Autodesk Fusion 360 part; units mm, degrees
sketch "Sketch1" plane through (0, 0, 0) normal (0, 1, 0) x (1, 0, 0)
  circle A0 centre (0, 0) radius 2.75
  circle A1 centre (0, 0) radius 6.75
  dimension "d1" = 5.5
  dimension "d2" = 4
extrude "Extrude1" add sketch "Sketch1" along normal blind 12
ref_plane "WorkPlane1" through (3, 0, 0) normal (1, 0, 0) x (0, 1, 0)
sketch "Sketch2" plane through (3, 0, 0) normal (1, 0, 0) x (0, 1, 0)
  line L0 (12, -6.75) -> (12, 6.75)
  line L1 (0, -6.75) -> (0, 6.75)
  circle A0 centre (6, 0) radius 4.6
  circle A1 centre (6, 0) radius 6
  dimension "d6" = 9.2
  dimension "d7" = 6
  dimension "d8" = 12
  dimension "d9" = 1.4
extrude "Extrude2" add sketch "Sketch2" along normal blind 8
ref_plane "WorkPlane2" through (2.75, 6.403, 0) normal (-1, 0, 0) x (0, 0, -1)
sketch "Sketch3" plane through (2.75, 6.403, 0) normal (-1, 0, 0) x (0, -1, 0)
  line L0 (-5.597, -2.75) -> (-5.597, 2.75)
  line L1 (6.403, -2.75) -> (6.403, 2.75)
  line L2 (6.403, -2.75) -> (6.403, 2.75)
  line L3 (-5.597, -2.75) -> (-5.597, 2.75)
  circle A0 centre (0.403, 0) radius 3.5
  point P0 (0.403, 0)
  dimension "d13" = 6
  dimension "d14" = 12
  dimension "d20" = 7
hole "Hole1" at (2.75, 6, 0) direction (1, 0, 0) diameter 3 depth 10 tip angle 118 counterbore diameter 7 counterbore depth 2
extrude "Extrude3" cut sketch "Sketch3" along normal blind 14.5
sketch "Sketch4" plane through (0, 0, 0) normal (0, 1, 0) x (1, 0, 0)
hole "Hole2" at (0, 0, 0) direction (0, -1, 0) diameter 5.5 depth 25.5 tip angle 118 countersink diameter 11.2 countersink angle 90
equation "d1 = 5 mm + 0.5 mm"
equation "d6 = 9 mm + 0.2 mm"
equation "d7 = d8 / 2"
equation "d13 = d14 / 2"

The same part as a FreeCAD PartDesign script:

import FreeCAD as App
import Part
import Sketcher

doc = App.newDocument("Part")
body = doc.addObject("PartDesign::Body", "Body")

sketch1 = body.newObject("Sketcher::SketchObject", "Sketch")
sketch1.AttachmentSupport = (doc.getObject("XZ_Plane"), [""])
sketch1.MapMode = "FlatFace"
sketch1.addGeometry([
    Part.Circle(App.Vector(0, 0, 0), App.Vector(0, 0, 1), 6.75),
    Part.Circle(App.Vector(0, 0, 0), App.Vector(0, 0, 1), 2.75),
], False)
sketch1.addConstraint([
    Sketcher.Constraint("Coincident", 0, 3, -1, 1),
    Sketcher.Constraint("Coincident", 1, 3, -1, 1),
    Sketcher.Constraint("Diameter", 1, 5.5),
    Sketcher.Constraint("Diameter", 0, 13.5),
])
pad1 = body.newObject("PartDesign::Pad", "Pad")
pad1.Profile = sketch1
pad1.Length = 12
pad1.Reversed = True

sketch2 = body.newObject("Sketcher::SketchObject", "Sketch001")
sketch2.AttachmentSupport = (doc.getObject("YZ_Plane"), [""])
sketch2.MapMode = "FlatFace"
sketch2.AttachmentOffset = App.Placement(App.Vector(0, 0, 3), App.Rotation())
sketch2.addGeometry([
    Part.Circle(App.Vector(6, 0, 0), App.Vector(0, 0, 1), 6),
    Part.Circle(App.Vector(6, 0, 0), App.Vector(0, 0, 1), 4.6),
], False)
sketch2.addConstraint([
    Sketcher.Constraint("Coincident", 1, 3, 0, 3),
    Sketcher.Constraint("PointOnObject", 0, 3, -1),
    Sketcher.Constraint("Diameter", 0, 12.0),
    Sketcher.Constraint("Diameter", 1, 9.2),
    Sketcher.Constraint("DistanceX", -1, 1, 0, 3, 6.0),
])
pad2 = body.newObject("PartDesign::Pad", "Pad001")
pad2.Profile = sketch2
pad2.Length = 8

sketch3 = body.newObject("Sketcher::SketchObject", "Sketch002")
sketch3.AttachmentSupport = (doc.getObject("YZ_Plane"), [""])
sketch3.MapMode = "FlatFace"
sketch3.AttachmentOffset = App.Placement(App.Vector(0, 0, 2.75), App.Rotation())
sketch3.addGeometry(Part.Circle(App.Vector(6, 0, 0), App.Vector(0, 0, 1), 1.5), False)
sketch3.addConstraint([
    Sketcher.Constraint("PointOnObject", 0, 3, -1),
    Sketcher.Constraint("Diameter", 0, 3.0),
    Sketcher.Constraint("DistanceX", -1, 1, 0, 3, 6.0),
])
doc.recompute()
hole = body.newObject("PartDesign::Hole", "Hole")
hole.Profile = sketch3
hole.ThreadType = "None"
hole.Diameter = 3
hole.DepthType = "Dimension"
hole.Depth = 10
hole.DrillPoint = "Angled"
hole.DrillPointAngle = 118
hole.HoleCutType = "Counterbore"
hole.HoleCutDiameter = 7
hole.HoleCutDepth = 2
hole.Reversed = True

sketch4 = body.newObject("Sketcher::SketchObject", "Sketch003")
sketch4.AttachmentSupport = (doc.getObject("YZ_Plane"), [""])
sketch4.MapMode = "FlatFace"
sketch4.AttachmentOffset = App.Placement(App.Vector(0, 0, 2.75), App.Rotation())
sketch4.addGeometry(Part.Circle(App.Vector(6, 0, 0), App.Vector(0, 0, 1), 3.5), False)
sketch4.addConstraint([
    Sketcher.Constraint("PointOnObject", 0, 3, -1),
    Sketcher.Constraint("Diameter", 0, 7.0),
    Sketcher.Constraint("DistanceX", -1, 1, 0, 3, 6.0),
])
pocket1 = body.newObject("PartDesign::Pocket", "Pocket")
pocket1.Profile = sketch4
pocket1.Length = 14.5

sketch5 = body.newObject("Sketcher::SketchObject", "Sketch004")
sketch5.AttachmentSupport = (doc.getObject("XZ_Plane"), [""])
sketch5.MapMode = "FlatFace"
sketch5.addGeometry(Part.Circle(App.Vector(0, 0, 0), App.Vector(0, 0, 1), 2.75), False)
sketch5.addConstraint([
    Sketcher.Constraint("Coincident", 0, 3, -1, 1),
    Sketcher.Constraint("Diameter", 0, 5.5),
])
doc.recompute()
hole2 = body.newObject("PartDesign::Hole", "Hole001")
hole2.Profile = sketch5
hole2.ThreadType = "None"
hole2.Diameter = 5.5
hole2.DepthType = "Dimension"
hole2.Depth = 25.5
hole2.DrillPoint = "Angled"
hole2.DrillPointAngle = 118
hole2.HoleCutType = "Countersink"
hole2.HoleCutDiameter = 11.2
hole2.HoleCutCountersinkAngle = 90
hole2.Reversed = True

doc.recompute()
